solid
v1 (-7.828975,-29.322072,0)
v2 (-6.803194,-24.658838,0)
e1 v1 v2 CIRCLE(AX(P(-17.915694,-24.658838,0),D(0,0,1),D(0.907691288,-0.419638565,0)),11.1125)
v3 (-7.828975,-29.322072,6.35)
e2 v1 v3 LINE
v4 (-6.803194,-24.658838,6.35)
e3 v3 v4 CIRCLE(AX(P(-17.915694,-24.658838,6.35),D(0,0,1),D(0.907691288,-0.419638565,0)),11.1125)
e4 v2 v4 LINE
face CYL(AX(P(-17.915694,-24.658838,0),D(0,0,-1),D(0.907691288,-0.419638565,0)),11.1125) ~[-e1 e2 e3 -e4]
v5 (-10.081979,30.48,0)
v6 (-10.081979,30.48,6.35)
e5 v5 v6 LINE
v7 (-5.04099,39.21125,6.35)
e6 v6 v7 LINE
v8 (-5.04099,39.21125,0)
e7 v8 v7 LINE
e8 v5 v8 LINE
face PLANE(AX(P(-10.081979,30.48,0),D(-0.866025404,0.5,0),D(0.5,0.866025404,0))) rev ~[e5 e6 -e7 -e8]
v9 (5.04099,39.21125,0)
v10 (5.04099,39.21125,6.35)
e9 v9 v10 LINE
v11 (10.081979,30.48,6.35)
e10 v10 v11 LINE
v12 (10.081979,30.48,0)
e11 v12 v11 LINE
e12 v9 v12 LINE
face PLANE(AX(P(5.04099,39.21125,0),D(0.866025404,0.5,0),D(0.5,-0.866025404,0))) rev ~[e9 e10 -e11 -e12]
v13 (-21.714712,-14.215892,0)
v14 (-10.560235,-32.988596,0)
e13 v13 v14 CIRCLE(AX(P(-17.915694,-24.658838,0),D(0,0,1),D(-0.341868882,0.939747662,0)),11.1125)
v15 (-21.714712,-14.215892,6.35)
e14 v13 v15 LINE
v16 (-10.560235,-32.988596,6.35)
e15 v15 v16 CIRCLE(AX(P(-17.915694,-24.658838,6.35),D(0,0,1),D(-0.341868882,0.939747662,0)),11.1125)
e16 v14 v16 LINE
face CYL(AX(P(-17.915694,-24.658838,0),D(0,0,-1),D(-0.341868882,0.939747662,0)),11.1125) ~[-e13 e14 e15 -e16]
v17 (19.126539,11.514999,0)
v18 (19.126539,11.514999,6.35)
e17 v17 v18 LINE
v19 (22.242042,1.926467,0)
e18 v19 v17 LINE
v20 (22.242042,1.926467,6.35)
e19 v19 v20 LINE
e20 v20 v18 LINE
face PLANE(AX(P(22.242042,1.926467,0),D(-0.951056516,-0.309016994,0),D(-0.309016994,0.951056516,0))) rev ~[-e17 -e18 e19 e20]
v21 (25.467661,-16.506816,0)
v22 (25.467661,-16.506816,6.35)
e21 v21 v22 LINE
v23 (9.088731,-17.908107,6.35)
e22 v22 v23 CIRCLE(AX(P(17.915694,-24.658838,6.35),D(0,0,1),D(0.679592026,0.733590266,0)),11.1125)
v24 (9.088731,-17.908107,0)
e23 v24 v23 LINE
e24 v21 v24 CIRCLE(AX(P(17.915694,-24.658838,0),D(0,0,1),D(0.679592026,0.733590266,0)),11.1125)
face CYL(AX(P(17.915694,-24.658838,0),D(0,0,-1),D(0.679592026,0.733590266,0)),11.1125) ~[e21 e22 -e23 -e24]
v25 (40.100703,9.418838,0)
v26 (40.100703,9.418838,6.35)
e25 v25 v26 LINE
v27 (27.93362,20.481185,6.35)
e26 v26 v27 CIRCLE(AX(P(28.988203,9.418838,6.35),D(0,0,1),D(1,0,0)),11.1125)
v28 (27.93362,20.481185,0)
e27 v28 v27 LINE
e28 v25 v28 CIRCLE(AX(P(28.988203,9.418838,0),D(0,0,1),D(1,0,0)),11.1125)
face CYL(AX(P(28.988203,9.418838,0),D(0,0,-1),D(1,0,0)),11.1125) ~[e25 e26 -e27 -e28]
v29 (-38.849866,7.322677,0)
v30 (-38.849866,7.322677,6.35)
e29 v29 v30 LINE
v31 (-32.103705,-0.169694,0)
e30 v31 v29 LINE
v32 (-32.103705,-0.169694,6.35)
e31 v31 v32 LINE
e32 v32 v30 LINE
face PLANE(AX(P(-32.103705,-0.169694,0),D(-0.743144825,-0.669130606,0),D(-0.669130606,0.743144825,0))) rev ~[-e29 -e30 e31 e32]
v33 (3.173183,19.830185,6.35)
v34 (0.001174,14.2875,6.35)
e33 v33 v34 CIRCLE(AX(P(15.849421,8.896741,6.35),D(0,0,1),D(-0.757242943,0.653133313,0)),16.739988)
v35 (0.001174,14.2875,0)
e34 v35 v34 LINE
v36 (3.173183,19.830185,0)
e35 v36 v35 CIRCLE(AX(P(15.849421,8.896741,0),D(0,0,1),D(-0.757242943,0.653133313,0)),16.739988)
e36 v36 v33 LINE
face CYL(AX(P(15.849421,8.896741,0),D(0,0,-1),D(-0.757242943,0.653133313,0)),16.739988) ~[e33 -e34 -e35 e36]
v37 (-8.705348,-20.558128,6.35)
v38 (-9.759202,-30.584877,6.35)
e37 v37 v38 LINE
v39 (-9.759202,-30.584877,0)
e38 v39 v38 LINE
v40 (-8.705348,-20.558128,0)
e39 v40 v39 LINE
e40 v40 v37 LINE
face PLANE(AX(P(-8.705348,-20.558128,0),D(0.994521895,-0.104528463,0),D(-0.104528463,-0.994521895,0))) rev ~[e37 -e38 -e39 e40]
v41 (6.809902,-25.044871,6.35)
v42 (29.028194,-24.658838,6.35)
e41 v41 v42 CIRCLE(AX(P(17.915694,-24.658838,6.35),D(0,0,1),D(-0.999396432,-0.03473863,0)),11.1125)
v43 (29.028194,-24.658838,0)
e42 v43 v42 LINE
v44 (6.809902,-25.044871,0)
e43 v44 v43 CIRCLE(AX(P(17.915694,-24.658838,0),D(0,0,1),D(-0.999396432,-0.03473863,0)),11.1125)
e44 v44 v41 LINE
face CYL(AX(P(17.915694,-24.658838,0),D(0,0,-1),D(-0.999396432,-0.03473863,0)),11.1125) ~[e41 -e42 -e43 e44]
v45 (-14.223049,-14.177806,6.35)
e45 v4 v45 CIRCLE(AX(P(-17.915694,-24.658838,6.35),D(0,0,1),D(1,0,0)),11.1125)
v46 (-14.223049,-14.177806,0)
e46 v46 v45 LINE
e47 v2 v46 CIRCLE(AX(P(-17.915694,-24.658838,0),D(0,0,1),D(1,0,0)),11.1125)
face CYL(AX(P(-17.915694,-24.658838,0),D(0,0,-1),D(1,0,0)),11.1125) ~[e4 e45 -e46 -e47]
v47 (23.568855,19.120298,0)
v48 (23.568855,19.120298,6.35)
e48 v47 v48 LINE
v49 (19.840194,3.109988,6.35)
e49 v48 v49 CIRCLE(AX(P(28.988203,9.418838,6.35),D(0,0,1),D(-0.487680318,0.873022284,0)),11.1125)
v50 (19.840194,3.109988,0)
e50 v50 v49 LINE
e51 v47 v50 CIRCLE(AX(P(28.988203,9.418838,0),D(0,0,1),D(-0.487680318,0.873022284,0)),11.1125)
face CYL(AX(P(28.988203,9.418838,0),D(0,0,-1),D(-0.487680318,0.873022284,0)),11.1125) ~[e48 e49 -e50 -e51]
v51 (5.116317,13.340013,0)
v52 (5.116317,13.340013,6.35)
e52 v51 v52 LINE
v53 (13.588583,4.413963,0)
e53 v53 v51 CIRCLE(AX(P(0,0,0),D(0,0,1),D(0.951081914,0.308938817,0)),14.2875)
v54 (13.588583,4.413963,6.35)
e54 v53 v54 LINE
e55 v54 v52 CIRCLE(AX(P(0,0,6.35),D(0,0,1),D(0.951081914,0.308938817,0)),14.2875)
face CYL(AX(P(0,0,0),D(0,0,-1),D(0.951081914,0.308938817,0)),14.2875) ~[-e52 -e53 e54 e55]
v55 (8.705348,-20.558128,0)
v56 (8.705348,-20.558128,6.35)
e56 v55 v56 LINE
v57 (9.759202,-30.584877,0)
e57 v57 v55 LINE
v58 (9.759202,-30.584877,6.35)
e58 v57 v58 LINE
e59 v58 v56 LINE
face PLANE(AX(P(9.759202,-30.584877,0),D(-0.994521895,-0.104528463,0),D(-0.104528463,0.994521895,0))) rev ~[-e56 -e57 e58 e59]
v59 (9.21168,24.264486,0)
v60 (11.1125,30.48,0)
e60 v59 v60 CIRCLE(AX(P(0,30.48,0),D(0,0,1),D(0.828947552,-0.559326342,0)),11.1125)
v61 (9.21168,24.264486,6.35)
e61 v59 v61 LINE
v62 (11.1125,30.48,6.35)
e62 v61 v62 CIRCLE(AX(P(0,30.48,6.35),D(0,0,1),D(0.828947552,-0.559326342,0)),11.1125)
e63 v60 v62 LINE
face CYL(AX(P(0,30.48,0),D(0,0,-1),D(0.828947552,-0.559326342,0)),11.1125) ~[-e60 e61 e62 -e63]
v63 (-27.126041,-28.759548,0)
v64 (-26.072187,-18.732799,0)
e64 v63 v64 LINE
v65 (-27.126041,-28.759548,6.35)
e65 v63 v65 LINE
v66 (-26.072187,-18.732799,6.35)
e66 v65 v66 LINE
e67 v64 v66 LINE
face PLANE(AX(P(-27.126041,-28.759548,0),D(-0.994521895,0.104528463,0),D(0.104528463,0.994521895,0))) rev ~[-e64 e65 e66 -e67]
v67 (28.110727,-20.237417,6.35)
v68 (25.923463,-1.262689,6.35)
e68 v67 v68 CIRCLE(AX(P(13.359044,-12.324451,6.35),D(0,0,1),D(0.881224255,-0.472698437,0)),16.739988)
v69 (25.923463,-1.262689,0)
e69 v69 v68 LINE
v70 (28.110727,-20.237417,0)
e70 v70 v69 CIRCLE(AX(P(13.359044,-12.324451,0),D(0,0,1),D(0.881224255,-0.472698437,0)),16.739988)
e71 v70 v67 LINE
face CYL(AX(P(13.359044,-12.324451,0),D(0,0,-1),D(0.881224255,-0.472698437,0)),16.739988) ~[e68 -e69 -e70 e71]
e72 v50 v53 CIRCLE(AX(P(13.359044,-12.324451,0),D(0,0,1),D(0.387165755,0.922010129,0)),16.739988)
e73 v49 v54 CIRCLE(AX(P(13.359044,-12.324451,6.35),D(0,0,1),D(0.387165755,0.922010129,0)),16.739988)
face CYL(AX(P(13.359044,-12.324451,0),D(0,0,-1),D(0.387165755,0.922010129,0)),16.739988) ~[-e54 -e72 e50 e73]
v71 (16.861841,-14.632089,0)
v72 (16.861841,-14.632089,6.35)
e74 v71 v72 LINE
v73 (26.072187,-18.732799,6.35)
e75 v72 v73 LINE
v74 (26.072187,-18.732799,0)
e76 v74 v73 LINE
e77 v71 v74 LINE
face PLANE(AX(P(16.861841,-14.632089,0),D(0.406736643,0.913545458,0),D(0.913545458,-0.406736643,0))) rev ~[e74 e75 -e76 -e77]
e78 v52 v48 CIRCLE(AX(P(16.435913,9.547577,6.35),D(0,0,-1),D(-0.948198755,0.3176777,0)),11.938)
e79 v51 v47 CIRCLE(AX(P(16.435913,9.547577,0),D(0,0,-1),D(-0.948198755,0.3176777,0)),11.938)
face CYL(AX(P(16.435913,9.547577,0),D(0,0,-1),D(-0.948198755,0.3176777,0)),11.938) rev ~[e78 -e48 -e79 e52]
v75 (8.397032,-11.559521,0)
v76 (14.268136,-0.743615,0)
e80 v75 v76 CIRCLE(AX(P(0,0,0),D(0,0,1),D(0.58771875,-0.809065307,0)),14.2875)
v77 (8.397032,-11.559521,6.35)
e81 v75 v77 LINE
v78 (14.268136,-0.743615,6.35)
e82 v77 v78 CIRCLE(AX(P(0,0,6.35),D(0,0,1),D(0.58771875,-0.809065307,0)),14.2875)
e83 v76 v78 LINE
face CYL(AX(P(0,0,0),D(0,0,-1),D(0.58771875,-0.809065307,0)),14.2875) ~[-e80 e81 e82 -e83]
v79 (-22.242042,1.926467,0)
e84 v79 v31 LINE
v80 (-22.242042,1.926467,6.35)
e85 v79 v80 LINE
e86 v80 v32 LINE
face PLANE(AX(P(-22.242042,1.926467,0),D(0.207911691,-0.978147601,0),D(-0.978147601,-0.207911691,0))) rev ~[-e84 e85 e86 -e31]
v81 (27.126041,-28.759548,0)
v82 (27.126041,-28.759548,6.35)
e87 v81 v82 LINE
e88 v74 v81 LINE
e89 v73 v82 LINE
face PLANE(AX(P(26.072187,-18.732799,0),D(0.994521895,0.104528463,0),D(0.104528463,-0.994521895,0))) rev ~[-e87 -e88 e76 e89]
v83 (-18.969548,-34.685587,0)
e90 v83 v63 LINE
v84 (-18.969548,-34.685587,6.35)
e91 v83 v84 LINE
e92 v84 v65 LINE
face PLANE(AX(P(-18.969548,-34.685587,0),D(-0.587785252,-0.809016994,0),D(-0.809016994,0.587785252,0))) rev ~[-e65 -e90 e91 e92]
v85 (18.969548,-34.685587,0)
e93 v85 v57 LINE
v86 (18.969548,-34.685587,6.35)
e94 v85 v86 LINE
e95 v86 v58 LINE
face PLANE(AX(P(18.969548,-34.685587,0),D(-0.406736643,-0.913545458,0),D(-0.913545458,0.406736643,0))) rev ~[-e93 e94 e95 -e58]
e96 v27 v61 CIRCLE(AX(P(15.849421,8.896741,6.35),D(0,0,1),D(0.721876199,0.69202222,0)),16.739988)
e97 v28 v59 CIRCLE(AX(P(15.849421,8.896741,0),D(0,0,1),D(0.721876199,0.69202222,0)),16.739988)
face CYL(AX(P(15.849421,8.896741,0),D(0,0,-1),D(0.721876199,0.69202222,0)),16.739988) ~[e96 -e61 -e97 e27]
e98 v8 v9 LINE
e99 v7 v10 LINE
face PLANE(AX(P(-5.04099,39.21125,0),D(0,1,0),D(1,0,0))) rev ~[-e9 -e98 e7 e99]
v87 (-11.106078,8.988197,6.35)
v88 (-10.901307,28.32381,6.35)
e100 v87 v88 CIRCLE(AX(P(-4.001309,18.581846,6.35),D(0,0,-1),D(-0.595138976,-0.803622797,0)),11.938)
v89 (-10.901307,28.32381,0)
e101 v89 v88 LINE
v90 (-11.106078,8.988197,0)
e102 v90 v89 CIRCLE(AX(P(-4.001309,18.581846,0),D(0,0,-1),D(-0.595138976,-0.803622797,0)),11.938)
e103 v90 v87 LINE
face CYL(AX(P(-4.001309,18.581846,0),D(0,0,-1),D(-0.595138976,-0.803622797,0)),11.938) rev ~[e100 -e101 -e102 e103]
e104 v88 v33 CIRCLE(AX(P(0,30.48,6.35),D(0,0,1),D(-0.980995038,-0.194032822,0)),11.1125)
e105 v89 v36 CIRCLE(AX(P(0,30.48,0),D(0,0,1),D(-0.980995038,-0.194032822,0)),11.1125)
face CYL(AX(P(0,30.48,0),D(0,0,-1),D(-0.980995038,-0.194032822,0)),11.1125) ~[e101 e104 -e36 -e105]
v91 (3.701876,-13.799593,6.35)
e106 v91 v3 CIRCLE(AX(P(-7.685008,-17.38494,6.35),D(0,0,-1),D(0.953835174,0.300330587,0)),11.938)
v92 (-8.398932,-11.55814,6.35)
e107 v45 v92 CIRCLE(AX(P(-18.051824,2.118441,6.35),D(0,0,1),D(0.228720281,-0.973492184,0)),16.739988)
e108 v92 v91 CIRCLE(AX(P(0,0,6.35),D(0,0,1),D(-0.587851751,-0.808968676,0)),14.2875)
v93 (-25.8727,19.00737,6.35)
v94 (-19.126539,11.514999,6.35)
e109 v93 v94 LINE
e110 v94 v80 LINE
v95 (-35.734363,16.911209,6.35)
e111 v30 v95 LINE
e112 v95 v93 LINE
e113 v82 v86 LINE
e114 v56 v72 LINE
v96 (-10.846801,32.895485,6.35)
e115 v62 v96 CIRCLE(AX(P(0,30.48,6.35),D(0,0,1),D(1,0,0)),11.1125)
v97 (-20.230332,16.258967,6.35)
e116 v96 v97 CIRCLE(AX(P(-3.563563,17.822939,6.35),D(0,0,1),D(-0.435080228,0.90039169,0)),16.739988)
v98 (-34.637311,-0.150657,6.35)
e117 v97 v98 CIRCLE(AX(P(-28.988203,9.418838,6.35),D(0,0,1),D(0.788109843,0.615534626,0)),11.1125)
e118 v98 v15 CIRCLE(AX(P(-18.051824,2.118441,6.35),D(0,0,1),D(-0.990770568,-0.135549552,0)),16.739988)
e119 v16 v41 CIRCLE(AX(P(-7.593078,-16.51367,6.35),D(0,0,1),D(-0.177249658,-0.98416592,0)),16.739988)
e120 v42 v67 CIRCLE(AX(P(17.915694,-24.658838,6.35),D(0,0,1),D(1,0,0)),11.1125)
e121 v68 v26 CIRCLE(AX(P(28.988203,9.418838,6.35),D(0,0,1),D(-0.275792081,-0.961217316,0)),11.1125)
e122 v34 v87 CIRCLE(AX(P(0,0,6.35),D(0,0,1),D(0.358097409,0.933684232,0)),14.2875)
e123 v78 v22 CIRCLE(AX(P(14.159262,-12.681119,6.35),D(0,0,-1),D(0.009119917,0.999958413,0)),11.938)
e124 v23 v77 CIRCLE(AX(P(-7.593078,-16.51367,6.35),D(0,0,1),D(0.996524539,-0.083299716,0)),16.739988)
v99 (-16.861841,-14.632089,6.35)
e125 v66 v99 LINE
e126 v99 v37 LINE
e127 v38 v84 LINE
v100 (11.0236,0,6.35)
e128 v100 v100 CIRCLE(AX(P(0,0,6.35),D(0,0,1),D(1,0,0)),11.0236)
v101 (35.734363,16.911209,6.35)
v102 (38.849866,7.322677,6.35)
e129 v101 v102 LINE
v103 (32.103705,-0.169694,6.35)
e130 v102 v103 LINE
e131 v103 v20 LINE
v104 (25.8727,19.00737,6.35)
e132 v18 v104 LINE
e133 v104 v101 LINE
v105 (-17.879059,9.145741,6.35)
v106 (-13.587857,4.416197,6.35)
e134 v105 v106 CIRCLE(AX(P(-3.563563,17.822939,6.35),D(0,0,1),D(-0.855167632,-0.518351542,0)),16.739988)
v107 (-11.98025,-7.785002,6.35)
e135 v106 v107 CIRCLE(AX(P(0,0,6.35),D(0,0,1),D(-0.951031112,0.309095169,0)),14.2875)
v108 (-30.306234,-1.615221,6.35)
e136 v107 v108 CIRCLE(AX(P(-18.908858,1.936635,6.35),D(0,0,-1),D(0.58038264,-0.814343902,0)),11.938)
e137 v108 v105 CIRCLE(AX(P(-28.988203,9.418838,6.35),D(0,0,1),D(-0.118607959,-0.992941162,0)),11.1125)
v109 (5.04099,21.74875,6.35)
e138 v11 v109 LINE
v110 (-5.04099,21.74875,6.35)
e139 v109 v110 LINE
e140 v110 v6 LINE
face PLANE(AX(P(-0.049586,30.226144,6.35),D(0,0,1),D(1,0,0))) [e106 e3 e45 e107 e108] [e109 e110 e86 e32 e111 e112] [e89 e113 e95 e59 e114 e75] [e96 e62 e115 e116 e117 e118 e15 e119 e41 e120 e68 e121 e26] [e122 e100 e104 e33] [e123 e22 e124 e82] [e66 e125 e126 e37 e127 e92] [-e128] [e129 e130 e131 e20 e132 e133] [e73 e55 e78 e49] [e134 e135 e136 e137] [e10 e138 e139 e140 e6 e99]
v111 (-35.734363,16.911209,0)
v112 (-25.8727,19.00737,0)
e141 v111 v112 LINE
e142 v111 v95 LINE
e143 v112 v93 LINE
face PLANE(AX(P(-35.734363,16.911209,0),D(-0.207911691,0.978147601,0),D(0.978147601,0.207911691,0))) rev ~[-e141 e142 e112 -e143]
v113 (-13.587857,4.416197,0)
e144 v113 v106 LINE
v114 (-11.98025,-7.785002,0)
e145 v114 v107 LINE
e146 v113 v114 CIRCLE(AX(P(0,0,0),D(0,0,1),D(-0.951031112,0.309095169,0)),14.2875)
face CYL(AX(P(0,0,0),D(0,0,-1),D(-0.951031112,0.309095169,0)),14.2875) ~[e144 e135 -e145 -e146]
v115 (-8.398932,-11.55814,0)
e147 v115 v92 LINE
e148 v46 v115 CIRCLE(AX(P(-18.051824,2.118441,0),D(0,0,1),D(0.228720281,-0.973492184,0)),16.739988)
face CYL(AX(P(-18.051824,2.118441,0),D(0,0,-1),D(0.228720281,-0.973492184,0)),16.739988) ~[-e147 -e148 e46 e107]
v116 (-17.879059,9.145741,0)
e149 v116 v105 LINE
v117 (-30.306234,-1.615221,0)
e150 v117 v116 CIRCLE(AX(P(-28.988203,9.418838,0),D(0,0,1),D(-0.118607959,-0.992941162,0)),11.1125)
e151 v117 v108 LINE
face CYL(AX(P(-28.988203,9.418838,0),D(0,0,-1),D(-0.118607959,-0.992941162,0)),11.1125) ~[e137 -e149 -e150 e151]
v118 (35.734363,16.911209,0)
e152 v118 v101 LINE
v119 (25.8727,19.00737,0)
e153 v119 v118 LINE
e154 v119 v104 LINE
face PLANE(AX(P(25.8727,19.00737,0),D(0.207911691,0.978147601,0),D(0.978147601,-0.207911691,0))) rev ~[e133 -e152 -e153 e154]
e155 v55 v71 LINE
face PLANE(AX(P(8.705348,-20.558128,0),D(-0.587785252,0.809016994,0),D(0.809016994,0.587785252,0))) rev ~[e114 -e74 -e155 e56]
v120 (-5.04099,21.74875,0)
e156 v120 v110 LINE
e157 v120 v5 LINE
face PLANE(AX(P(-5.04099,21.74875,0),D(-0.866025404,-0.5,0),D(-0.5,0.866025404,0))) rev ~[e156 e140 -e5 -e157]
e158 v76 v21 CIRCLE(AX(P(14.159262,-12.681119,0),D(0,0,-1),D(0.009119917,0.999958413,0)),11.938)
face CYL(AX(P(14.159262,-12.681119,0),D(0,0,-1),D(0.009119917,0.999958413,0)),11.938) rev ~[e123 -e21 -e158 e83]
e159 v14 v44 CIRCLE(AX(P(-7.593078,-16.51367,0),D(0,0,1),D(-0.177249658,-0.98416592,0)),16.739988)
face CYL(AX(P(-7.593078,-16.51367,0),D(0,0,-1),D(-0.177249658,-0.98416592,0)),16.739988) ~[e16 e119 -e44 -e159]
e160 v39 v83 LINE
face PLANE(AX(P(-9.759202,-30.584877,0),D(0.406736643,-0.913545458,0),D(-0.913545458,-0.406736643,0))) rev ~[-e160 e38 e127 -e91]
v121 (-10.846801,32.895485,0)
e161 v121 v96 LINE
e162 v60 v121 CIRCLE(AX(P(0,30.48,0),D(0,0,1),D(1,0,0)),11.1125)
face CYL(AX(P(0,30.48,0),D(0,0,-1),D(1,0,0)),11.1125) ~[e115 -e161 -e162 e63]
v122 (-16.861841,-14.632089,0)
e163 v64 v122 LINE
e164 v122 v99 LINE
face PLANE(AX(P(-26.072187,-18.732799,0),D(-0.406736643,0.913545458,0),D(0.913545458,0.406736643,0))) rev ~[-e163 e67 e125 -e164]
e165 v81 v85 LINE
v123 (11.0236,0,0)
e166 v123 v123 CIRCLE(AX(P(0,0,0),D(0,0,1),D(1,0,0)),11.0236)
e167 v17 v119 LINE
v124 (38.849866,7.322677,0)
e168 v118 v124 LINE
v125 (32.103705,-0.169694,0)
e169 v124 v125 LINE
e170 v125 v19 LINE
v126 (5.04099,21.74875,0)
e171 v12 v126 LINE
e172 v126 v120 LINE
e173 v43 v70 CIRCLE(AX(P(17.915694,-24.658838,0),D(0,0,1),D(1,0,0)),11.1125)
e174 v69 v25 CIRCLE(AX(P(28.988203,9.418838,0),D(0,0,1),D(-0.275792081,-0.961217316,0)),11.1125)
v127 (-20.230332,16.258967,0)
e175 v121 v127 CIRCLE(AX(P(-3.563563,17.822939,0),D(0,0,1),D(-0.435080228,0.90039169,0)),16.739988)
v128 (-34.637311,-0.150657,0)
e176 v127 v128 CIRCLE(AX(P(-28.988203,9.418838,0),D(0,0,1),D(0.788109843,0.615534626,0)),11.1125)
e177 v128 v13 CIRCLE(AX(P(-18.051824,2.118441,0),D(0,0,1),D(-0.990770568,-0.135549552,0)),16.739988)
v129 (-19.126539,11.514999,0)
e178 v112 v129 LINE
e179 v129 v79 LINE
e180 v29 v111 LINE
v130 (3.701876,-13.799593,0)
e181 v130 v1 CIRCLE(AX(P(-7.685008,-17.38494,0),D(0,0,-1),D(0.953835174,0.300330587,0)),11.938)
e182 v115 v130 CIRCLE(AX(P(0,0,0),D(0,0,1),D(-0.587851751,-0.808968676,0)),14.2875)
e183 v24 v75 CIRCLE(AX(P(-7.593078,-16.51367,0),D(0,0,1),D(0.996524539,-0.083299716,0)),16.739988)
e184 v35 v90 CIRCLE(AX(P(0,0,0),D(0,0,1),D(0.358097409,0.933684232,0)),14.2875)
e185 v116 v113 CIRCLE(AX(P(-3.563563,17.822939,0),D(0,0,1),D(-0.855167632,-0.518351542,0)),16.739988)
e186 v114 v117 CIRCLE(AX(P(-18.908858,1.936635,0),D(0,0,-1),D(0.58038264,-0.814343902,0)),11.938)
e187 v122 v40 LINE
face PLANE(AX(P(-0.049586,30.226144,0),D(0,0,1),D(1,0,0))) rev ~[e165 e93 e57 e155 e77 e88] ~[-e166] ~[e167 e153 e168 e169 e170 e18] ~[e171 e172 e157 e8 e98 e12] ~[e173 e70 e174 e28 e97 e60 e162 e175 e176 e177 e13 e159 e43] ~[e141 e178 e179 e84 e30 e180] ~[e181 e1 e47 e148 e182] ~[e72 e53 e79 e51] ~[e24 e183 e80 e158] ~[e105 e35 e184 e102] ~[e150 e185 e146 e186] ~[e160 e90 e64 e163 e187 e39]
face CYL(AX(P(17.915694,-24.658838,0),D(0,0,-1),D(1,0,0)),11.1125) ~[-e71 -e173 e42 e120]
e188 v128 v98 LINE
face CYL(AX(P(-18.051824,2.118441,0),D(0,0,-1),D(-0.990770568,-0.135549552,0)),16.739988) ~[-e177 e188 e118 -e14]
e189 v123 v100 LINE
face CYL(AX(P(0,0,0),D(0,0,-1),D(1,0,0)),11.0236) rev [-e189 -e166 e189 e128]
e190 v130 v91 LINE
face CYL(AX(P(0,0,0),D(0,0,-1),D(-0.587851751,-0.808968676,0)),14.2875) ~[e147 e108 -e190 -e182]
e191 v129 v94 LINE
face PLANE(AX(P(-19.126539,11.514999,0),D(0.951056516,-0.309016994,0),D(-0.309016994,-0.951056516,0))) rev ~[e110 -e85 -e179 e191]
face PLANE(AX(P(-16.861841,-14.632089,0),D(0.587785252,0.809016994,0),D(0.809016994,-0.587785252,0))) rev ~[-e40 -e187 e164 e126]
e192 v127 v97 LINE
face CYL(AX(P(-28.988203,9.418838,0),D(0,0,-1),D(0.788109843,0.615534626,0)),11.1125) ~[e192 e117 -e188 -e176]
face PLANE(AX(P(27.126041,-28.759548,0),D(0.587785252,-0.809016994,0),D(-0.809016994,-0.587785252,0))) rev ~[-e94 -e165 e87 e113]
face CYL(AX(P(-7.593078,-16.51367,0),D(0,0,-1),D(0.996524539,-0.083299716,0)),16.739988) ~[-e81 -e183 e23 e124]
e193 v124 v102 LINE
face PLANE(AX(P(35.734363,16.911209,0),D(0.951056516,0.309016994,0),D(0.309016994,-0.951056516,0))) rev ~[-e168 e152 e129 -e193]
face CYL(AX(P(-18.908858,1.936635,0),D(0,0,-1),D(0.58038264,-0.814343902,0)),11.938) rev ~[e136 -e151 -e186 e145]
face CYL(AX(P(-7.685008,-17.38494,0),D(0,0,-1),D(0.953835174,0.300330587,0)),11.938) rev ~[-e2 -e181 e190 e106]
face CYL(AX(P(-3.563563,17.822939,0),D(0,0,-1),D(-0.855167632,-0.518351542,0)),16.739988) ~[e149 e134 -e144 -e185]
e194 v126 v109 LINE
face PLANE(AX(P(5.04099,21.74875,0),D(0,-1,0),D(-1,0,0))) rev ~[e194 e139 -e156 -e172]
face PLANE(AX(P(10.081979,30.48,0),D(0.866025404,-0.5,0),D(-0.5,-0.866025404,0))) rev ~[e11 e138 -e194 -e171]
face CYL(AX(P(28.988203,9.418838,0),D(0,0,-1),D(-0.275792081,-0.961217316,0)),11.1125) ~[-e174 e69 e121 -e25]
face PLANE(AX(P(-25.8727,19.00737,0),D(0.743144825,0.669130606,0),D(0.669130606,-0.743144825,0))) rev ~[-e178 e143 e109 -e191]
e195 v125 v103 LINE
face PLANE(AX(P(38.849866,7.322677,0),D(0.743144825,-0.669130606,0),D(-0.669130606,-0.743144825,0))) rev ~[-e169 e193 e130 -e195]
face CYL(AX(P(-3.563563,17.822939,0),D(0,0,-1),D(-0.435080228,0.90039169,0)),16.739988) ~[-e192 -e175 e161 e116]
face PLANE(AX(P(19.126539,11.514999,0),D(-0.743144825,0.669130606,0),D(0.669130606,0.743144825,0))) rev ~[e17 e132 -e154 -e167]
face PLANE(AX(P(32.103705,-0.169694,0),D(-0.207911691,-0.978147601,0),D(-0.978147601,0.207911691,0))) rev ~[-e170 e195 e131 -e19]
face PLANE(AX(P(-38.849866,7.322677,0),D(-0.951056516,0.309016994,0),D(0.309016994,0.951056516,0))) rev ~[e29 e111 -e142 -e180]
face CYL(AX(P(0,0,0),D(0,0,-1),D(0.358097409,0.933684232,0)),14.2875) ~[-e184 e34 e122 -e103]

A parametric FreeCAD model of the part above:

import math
import FreeCAD as App
import Part
import Sketcher

V = App.Vector
Q = App.Units.Quantity

doc = App.newDocument("Part")
body = doc.addObject("PartDesign::Body", "Body")

# Sketch on XY plane
sketch1 = body.newObject("Sketcher::SketchObject", "Sketch")
sketch1.AttachmentSupport = (doc.getObject("XY_Plane"), [""])
sketch1.MapMode = "FlatFace"
sketch1.addGeometry(Part.ArcOfCircle(Part.Circle(V(29, 9.4, 0), V(0, 0, 1), 11.1), math.radians(0), math.radians(95)), False)
sketch1.addGeometry(Part.ArcOfCircle(Part.Circle(V(15.8, 8.9, 0), V(0, 0, 1), 16.7), math.radians(44), math.radians(113)), False)
sketch1.addGeometry(Part.ArcOfCircle(Part.Circle(V(0, 30.5, 0), V(0, 0, 1), 11.1), math.radians(-34), math.radians(0)), False)
sketch1.addGeometry(Part.ArcOfCircle(Part.Circle(V(0, 30.5, 0), V(0, 0, 1), 11.1), math.radians(0), math.radians(167)), False)
sketch1.addGeometry(Part.ArcOfCircle(Part.Circle(V(-3.6, 17.8, 0), V(0, 0, 1), 16.7), math.radians(116), math.radians(185)), False)
sketch1.addGeometry(Part.ArcOfCircle(Part.Circle(V(-29, 9.4, 0), V(0, 0, 1), 11.1), math.radians(38), math.radians(239)), False)
sketch1.addGeometry(Part.ArcOfCircle(Part.Circle(V(-18.1, 2.1, 0), V(0, 0, 1), 16.7), math.radians(-172), math.radians(-103)), False)
sketch1.addGeometry(Part.ArcOfCircle(Part.Circle(V(-17.9, -24.7, 0), V(0, 0, 1), 11.1), math.radians(110), math.radians(311)), False)
sketch1.addGeometry(Part.ArcOfCircle(Part.Circle(V(-7.6, -16.5, 0), V(0, 0, 1), 16.7), math.radians(-100), math.radians(-31)), False)
sketch1.addGeometry(Part.ArcOfCircle(Part.Circle(V(17.9, -24.7, 0), V(0, 0, 1), 11.1), math.radians(-178), math.radians(0)), False)
sketch1.addGeometry(Part.ArcOfCircle(Part.Circle(V(17.9, -24.7, 0), V(0, 0, 1), 11.1), math.radians(0), math.radians(23)), False)
sketch1.addGeometry(Part.ArcOfCircle(Part.Circle(V(13.4, -12.3, 0), V(0, 0, 1), 16.7), math.radians(-28), math.radians(41)), False)
sketch1.addGeometry(Part.ArcOfCircle(Part.Circle(V(29, 9.4, 0), V(0, 0, 1), 11.1), math.radians(-106), math.radians(0)), False)
sketch1.addGeometry(Part.LineSegment(V(-16.9, -14.6, 0), V(-8.7, -20.6, 0)), False)
sketch1.addGeometry(Part.LineSegment(V(-8.7, -20.6, 0), V(-9.8, -30.6, 0)), False)
sketch1.addGeometry(Part.LineSegment(V(-9.8, -30.6, 0), V(-19, -34.7, 0)), False)
sketch1.addGeometry(Part.LineSegment(V(-19, -34.7, 0), V(-27.1, -28.8, 0)), False)
sketch1.addGeometry(Part.LineSegment(V(-27.1, -28.8, 0), V(-26.1, -18.7, 0)), False)
sketch1.addGeometry(Part.LineSegment(V(-26.1, -18.7, 0), V(-16.9, -14.6, 0)), False)
sketch1.addGeometry(Part.ArcOfCircle(Part.Circle(V(-18.1, 2.1, 0), V(0, 0, 1), 16.7), math.radians(-77), math.radians(-55)), False)
sketch1.addGeometry(Part.ArcOfCircle(Part.Circle(V(0, 0, 0), V(0, 0, 1), 14.3), math.radians(-126), math.radians(-75)), False)
sketch1.addGeometry(Part.ArcOfCircle(Part.Circle(V(-7.7, -17.4, 0), V(0, 0, 1), 11.9), math.radians(-91), math.radians(17)), False)
sketch1.addGeometry(Part.ArcOfCircle(Part.Circle(V(-17.9, -24.7, 0), V(0, 0, 1), 11.1), math.radians(-25), math.radians(0)), False)
sketch1.addGeometry(Part.ArcOfCircle(Part.Circle(V(-17.9, -24.7, 0), V(0, 0, 1), 11.1), math.radians(0), math.radians(71)), False)
sketch1.addGeometry(Part.ArcOfCircle(Part.Circle(V(-3.6, 17.8, 0), V(0, 0, 1), 16.7), math.radians(-149), math.radians(-127)), False)
sketch1.addGeometry(Part.ArcOfCircle(Part.Circle(V(0, 0, 0), V(0, 0, 1), 14.3), math.radians(162), math.radians(213)), False)
sketch1.addGeometry(Part.ArcOfCircle(Part.Circle(V(-18.9, 1.9, 0), V(0, 0, 1), 11.9), math.radians(-163), math.radians(-55)), False)
sketch1.addGeometry(Part.ArcOfCircle(Part.Circle(V(-29, 9.4, 0), V(0, 0, 1), 11.1), math.radians(-97), math.radians(-1)), False)
sketch1.addGeometry(Part.LineSegment(V(8.7, -20.6, 0), V(16.9, -14.6, 0)), False)
sketch1.addGeometry(Part.LineSegment(V(16.9, -14.6, 0), V(26.1, -18.7, 0)), False)
sketch1.addGeometry(Part.LineSegment(V(26.1, -18.7, 0), V(27.1, -28.8, 0)), False)
sketch1.addGeometry(Part.LineSegment(V(27.1, -28.8, 0), V(19, -34.7, 0)), False)
sketch1.addGeometry(Part.LineSegment(V(19, -34.7, 0), V(9.8, -30.6, 0)), False)
sketch1.addGeometry(Part.LineSegment(V(9.8, -30.6, 0), V(8.7, -20.6, 0)), False)
sketch1.addGeometry(Part.ArcOfCircle(Part.Circle(V(-7.6, -16.5, 0), V(0, 0, 1), 16.7), math.radians(-5), math.radians(17)), False)
sketch1.addGeometry(Part.ArcOfCircle(Part.Circle(V(0, 0, 0), V(0, 0, 1), 14.3), math.radians(-54), math.radians(-3)), False)
sketch1.addGeometry(Part.ArcOfCircle(Part.Circle(V(14.2, -12.7, 0), V(0, 0, 1), 11.9), math.radians(-19), math.radians(89)), False)
sketch1.addGeometry(Part.ArcOfCircle(Part.Circle(V(17.9, -24.7, 0), V(0, 0, 1), 11.1), math.radians(47), math.radians(143)), False)
sketch1.addGeometry(Part.Circle(V(0, 0, 0), V(0, 0, 1), 11), False)
sketch1.addGeometry(Part.LineSegment(V(-25.9, 19, 0), V(-19.1, 11.5, 0)), False)
sketch1.addGeometry(Part.LineSegment(V(-19.1, 11.5, 0), V(-22.2, 1.9, 0)), False)
sketch1.addGeometry(Part.LineSegment(V(-22.2, 1.9, 0), V(-32.1, -0.2, 0)), False)
sketch1.addGeometry(Part.LineSegment(V(-32.1, -0.2, 0), V(-38.8, 7.3, 0)), False)
sketch1.addGeometry(Part.LineSegment(V(-38.8, 7.3, 0), V(-35.7, 16.9, 0)), False)
sketch1.addGeometry(Part.LineSegment(V(-35.7, 16.9, 0), V(-25.9, 19, 0)), False)
sketch1.addGeometry(Part.ArcOfCircle(Part.Circle(V(0, 30.5, 0), V(0, 0, 1), 11.1), math.radians(-169), math.radians(-73)), False)
sketch1.addGeometry(Part.ArcOfCircle(Part.Circle(V(15.8, 8.9, 0), V(0, 0, 1), 16.7), math.radians(139), math.radians(161)), False)
sketch1.addGeometry(Part.ArcOfCircle(Part.Circle(V(0, 0, 0), V(0, 0, 1), 14.3), math.radians(90), math.radians(141)), False)
sketch1.addGeometry(Part.ArcOfCircle(Part.Circle(V(-4, 18.6, 0), V(0, 0, 1), 11.9), math.radians(125), math.radians(233)), False)
sketch1.addGeometry(Part.ArcOfCircle(Part.Circle(V(13.4, -12.3, 0), V(0, 0, 1), 16.7), math.radians(67), math.radians(89)), False)
sketch1.addGeometry(Part.ArcOfCircle(Part.Circle(V(0, 0, 0), V(0, 0, 1), 14.3), math.radians(18), math.radians(69)), False)
sketch1.addGeometry(Part.ArcOfCircle(Part.Circle(V(16.4, 9.5, 0), V(0, 0, 1), 11.9), math.radians(53), math.radians(161)), False)
sketch1.addGeometry(Part.ArcOfCircle(Part.Circle(V(29, 9.4, 0), V(0, 0, 1), 11.1), math.radians(119), math.radians(215)), False)
sketch1.addGeometry(Part.LineSegment(V(19.1, 11.5, 0), V(25.9, 19, 0)), False)
sketch1.addGeometry(Part.LineSegment(V(25.9, 19, 0), V(35.7, 16.9, 0)), False)
sketch1.addGeometry(Part.LineSegment(V(35.7, 16.9, 0), V(38.8, 7.3, 0)), False)
sketch1.addGeometry(Part.LineSegment(V(38.8, 7.3, 0), V(32.1, -0.2, 0)), False)
sketch1.addGeometry(Part.LineSegment(V(32.1, -0.2, 0), V(22.2, 1.9, 0)), False)
sketch1.addGeometry(Part.LineSegment(V(22.2, 1.9, 0), V(19.1, 11.5, 0)), False)
sketch1.addGeometry(Part.LineSegment(V(5, 39.2, 0), V(10.1, 30.5, 0)), False)
sketch1.addGeometry(Part.LineSegment(V(10.1, 30.5, 0), V(5, 21.7, 0)), False)
sketch1.addGeometry(Part.LineSegment(V(5, 21.7, 0), V(-5, 21.7, 0)), False)
sketch1.addGeometry(Part.LineSegment(V(-5, 21.7, 0), V(-10.1, 30.5, 0)), False)
sketch1.addGeometry(Part.LineSegment(V(-10.1, 30.5, 0), V(-5, 39.2, 0)), False)
sketch1.addGeometry(Part.LineSegment(V(-5, 39.2, 0), V(5, 39.2, 0)), False)
sketch1.addConstraint(Sketcher.Constraint("Coincident", 0, 2, 1, 1))
sketch1.addConstraint(Sketcher.Constraint("Coincident", 1, 2, 2, 1))
sketch1.addConstraint(Sketcher.Constraint("Tangent", 2, 2, 3, 1))
sketch1.addConstraint(Sketcher.Constraint("Coincident", 3, 2, 4, 1))
sketch1.addConstraint(Sketcher.Constraint("Coincident", 4, 2, 5, 1))
sketch1.addConstraint(Sketcher.Constraint("Coincident", 5, 2, 6, 1))
sketch1.addConstraint(Sketcher.Constraint("Coincident", 6, 2, 7, 1))
sketch1.addConstraint(Sketcher.Constraint("Coincident", 7, 2, 8, 1))
sketch1.addConstraint(Sketcher.Constraint("Coincident", 8, 2, 9, 1))
sketch1.addConstraint(Sketcher.Constraint("Tangent", 9, 2, 10, 1))
sketch1.addConstraint(Sketcher.Constraint("Coincident", 10, 2, 11, 1))
sketch1.addConstraint(Sketcher.Constraint("Coincident", 11, 2, 12, 1))
sketch1.addConstraint(Sketcher.Constraint("Tangent", 12, 2, 0, 1))
sketch1.addConstraint(Sketcher.Constraint("Coincident", 13, 2, 14, 1))
sketch1.addConstraint(Sketcher.Constraint("Coincident", 14, 2, 15, 1))
sketch1.addConstraint(Sketcher.Constraint("Coincident", 15, 2, 16, 1))
sketch1.addConstraint(Sketcher.Constraint("Coincident", 16, 2, 17, 1))
sketch1.addConstraint(Sketcher.Constraint("Coincident", 17, 2, 18, 1))
sketch1.addConstraint(Sketcher.Constraint("Coincident", 18, 2, 13, 1))
sketch1.addConstraint(Sketcher.Constraint("Coincident", 19, 2, 20, 1))
sketch1.addConstraint(Sketcher.Constraint("Coincident", 20, 2, 21, 2))
sketch1.addConstraint(Sketcher.Constraint("Coincident", 21, 1, 22, 1))
sketch1.addConstraint(Sketcher.Constraint("Tangent", 22, 2, 23, 1))
sketch1.addConstraint(Sketcher.Constraint("Coincident", 23, 2, 19, 1))
sketch1.addConstraint(Sketcher.Constraint("Coincident", 24, 2, 25, 1))
sketch1.addConstraint(Sketcher.Constraint("Coincident", 25, 2, 26, 2))
sketch1.addConstraint(Sketcher.Constraint("Coincident", 26, 1, 27, 1))
sketch1.addConstraint(Sketcher.Constraint("Coincident", 27, 2, 24, 1))
sketch1.addConstraint(Sketcher.Constraint("Coincident", 28, 2, 29, 1))
sketch1.addConstraint(Sketcher.Constraint("Coincident", 29, 2, 30, 1))
sketch1.addConstraint(Sketcher.Constraint("Coincident", 30, 2, 31, 1))
sketch1.addConstraint(Sketcher.Constraint("Coincident", 31, 2, 32, 1))
sketch1.addConstraint(Sketcher.Constraint("Coincident", 32, 2, 33, 1))
sketch1.addConstraint(Sketcher.Constraint("Coincident", 33, 2, 28, 1))
sketch1.addConstraint(Sketcher.Constraint("Coincident", 34, 2, 35, 1))
sketch1.addConstraint(Sketcher.Constraint("Coincident", 35, 2, 36, 2))
sketch1.addConstraint(Sketcher.Constraint("Coincident", 36, 1, 37, 1))
sketch1.addConstraint(Sketcher.Constraint("Coincident", 37, 2, 34, 1))
sketch1.addConstraint(Sketcher.Constraint("Coincident", 39, 2, 40, 1))
sketch1.addConstraint(Sketcher.Constraint("Coincident", 40, 2, 41, 1))
sketch1.addConstraint(Sketcher.Constraint("Coincident", 41, 2, 42, 1))
sketch1.addConstraint(Sketcher.Constraint("Coincident", 42, 2, 43, 1))
sketch1.addConstraint(Sketcher.Constraint("Coincident", 43, 2, 44, 1))
sketch1.addConstraint(Sketcher.Constraint("Coincident", 44, 2, 39, 1))
sketch1.addConstraint(Sketcher.Constraint("Coincident", 45, 2, 46, 1))
sketch1.addConstraint(Sketcher.Constraint("Coincident", 46, 2, 47, 1))
sketch1.addConstraint(Sketcher.Constraint("Coincident", 47, 2, 48, 2))
sketch1.addConstraint(Sketcher.Constraint("Coincident", 48, 1, 45, 1))
sketch1.addConstraint(Sketcher.Constraint("Coincident", 49, 2, 50, 1))
sketch1.addConstraint(Sketcher.Constraint("Coincident", 50, 2, 51, 2))
sketch1.addConstraint(Sketcher.Constraint("Coincident", 51, 1, 52, 1))
sketch1.addConstraint(Sketcher.Constraint("Coincident", 52, 2, 49, 1))
sketch1.addConstraint(Sketcher.Constraint("Coincident", 53, 2, 54, 1))
sketch1.addConstraint(Sketcher.Constraint("Coincident", 54, 2, 55, 1))
sketch1.addConstraint(Sketcher.Constraint("Coincident", 55, 2, 56, 1))
sketch1.addConstraint(Sketcher.Constraint("Coincident", 56, 2, 57, 1))
sketch1.addConstraint(Sketcher.Constraint("Coincident", 57, 2, 58, 1))
sketch1.addConstraint(Sketcher.Constraint("Coincident", 58, 2, 53, 1))
sketch1.addConstraint(Sketcher.Constraint("Coincident", 59, 2, 60, 1))
sketch1.addConstraint(Sketcher.Constraint("Coincident", 60, 2, 61, 1))
sketch1.addConstraint(Sketcher.Constraint("Coincident", 61, 2, 62, 1))
sketch1.addConstraint(Sketcher.Constraint("Coincident", 62, 2, 63, 1))
sketch1.addConstraint(Sketcher.Constraint("Coincident", 63, 2, 64, 1))
sketch1.addConstraint(Sketcher.Constraint("Coincident", 64, 2, 59, 1))
sketch1.addConstraint(Sketcher.Constraint("Horizontal", 61))
sketch1.addConstraint(Sketcher.Constraint("Horizontal", 64))
sketch1.addConstraint(Sketcher.Constraint("Coincident", 20, 3, -1, 1))
sketch1.addConstraint(Sketcher.Constraint("Coincident", 25, 3, -1, 1))
sketch1.addConstraint(Sketcher.Constraint("Coincident", 35, 3, -1, 1))
sketch1.addConstraint(Sketcher.Constraint("Coincident", 38, 3, -1, 1))
sketch1.addConstraint(Sketcher.Constraint("Coincident", 47, 3, -1, 1))
sketch1.addConstraint(Sketcher.Constraint("Coincident", 50, 3, -1, 1))
sketch1.addConstraint(Sketcher.Constraint("Coincident", 19, 3, 6, 3))
sketch1.addConstraint(Sketcher.Constraint("Coincident", 22, 3, 7, 3))
sketch1.addConstraint(Sketcher.Constraint("Coincident", 24, 3, 4, 3))
sketch1.addConstraint(Sketcher.Constraint("Coincident", 27, 3, 5, 3))
sketch1.addConstraint(Sketcher.Constraint("Coincident", 34, 3, 8, 3))
sketch1.addConstraint(Sketcher.Constraint("Coincident", 37, 3, 9, 3))
sketch1.addConstraint(Sketcher.Constraint("Coincident", 45, 3, 2, 3))
sketch1.addConstraint(Sketcher.Constraint("Coincident", 46, 3, 1, 3))
sketch1.addConstraint(Sketcher.Constraint("Coincident", 49, 3, 11, 3))
sketch1.addConstraint(Sketcher.Constraint("Coincident", 52, 3, 0, 3))
sketch1.addConstraint(Sketcher.Constraint("Equal", 0, 2))
sketch1.addConstraint(Sketcher.Constraint("Equal", 2, 3))
sketch1.addConstraint(Sketcher.Constraint("Equal", 1, 4))
sketch1.addConstraint(Sketcher.Constraint("Equal", 3, 5))
sketch1.addConstraint(Sketcher.Constraint("Equal", 4, 6))
sketch1.addConstraint(Sketcher.Constraint("Equal", 5, 7))
sketch1.addConstraint(Sketcher.Constraint("Equal", 6, 8))
sketch1.addConstraint(Sketcher.Constraint("Equal", 7, 9))
sketch1.addConstraint(Sketcher.Constraint("Equal", 9, 10))
sketch1.addConstraint(Sketcher.Constraint("Equal", 8, 11))
sketch1.addConstraint(Sketcher.Constraint("Equal", 10, 12))
sketch1.addConstraint(Sketcher.Constraint("Equal", 11, 19))
sketch1.addConstraint(Sketcher.Constraint("Equal", 12, 22))
sketch1.addConstraint(Sketcher.Constraint("Equal", 22, 23))
sketch1.addConstraint(Sketcher.Constraint("Equal", 19, 24))
sketch1.addConstraint(Sketcher.Constraint("Equal", 20, 25))
sketch1.addConstraint(Sketcher.Constraint("Equal", 21, 26))
sketch1.addConstraint(Sketcher.Constraint("Equal", 23, 27))
sketch1.addConstraint(Sketcher.Constraint("Equal", 24, 34))
sketch1.addConstraint(Sketcher.Constraint("Equal", 25, 35))
sketch1.addConstraint(Sketcher.Constraint("Equal", 26, 36))
sketch1.addConstraint(Sketcher.Constraint("Equal", 27, 37))
sketch1.addConstraint(Sketcher.Constraint("Equal", 37, 45))
sketch1.addConstraint(Sketcher.Constraint("Equal", 34, 46))
sketch1.addConstraint(Sketcher.Constraint("Equal", 35, 47))
sketch1.addConstraint(Sketcher.Constraint("Equal", 36, 48))
sketch1.addConstraint(Sketcher.Constraint("Equal", 46, 49))
sketch1.addConstraint(Sketcher.Constraint("Equal", 47, 50))
sketch1.addConstraint(Sketcher.Constraint("Equal", 48, 51))
sketch1.addConstraint(Sketcher.Constraint("Equal", 45, 52))
sketch1.addConstraint(Sketcher.Constraint("Symmetric", 0, 3, 5, 3, -2))
sketch1.addConstraint(Sketcher.Constraint("Symmetric", 7, 3, 9, 3, -2))
sketch1.addConstraint(Sketcher.Constraint("Symmetric", 18, 2, 28, 2, -2))
sketch1.addConstraint(Sketcher.Constraint("Symmetric", 17, 2, 29, 2, -2))
sketch1.addConstraint(Sketcher.Constraint("Symmetric", 16, 2, 30, 2, -2))
sketch1.addConstraint(Sketcher.Constraint("Symmetric", 15, 2, 31, 2, -2))
sketch1.addConstraint(Sketcher.Constraint("Symmetric", 14, 2, 32, 2, -2))
sketch1.addConstraint(Sketcher.Constraint("Symmetric", 13, 2, 33, 2, -2))
sketch1.addConstraint(Sketcher.Constraint("Symmetric", 44, 2, 53, 2, -2))
sketch1.addConstraint(Sketcher.Constraint("Symmetric", 43, 2, 54, 2, -2))
sketch1.addConstraint(Sketcher.Constraint("Symmetric", 42, 2, 55, 2, -2))
sketch1.addConstraint(Sketcher.Constraint("Symmetric", 41, 2, 56, 2, -2))
sketch1.addConstraint(Sketcher.Constraint("Symmetric", 40, 2, 57, 2, -2))
sketch1.addConstraint(Sketcher.Constraint("Symmetric", 39, 2, 58, 2, -2))
sketch1.addConstraint(Sketcher.Constraint("Symmetric", 59, 2, 62, 2, -2))
sketch1.addConstraint(Sketcher.Constraint("PointOnObject", 2, 3, -2))
sketch1.addConstraint(Sketcher.Constraint("Parallel", 13, 16))
sketch1.addConstraint(Sketcher.Constraint("Parallel", 14, 17))
sketch1.addConstraint(Sketcher.Constraint("Parallel", 15, 18))
sketch1.addConstraint(Sketcher.Constraint("Parallel", 39, 42))
sketch1.addConstraint(Sketcher.Constraint("Parallel", 40, 43))
sketch1.addConstraint(Sketcher.Constraint("Parallel", 41, 44))
sketch1.addConstraint(Sketcher.Constraint("Parallel", 59, 62))
sketch1.addConstraint(Sketcher.Constraint("Parallel", 60, 63))
sketch1.addConstraint(Sketcher.Constraint("Horizontal", 45, 3, 2, 2))
sketch1.addConstraint(Sketcher.Constraint("Horizontal", 37, 3, 9, 2))
sketch1.addConstraint(Sketcher.Constraint("Horizontal", 52, 3, 12, 2))
sketch1.addConstraint(Sketcher.Constraint("Horizontal", 9, 2, 22, 2))
sketch1.addConstraint(Sketcher.Constraint("Horizontal", 2, 2, 59, 2))
sketch1.addConstraint(Sketcher.Constraint("Vertical", 61, 2, 63, 2))
sketch1.addConstraint(Sketcher.Constraint("Vertical", 60, 2, 64, 2))
sketch1.addConstraint(Sketcher.Constraint("Equal", 13, 14))
sketch1.addConstraint(Sketcher.Constraint("Equal", 14, 15))
sketch1.addConstraint(Sketcher.Constraint("Equal", 15, 16))
sketch1.addConstraint(Sketcher.Constraint("Equal", 33, 39))
sketch1.addConstraint(Sketcher.Constraint("Equal", 39, 40))
sketch1.addConstraint(Sketcher.Constraint("Equal", 40, 41))
sketch1.addConstraint(Sketcher.Constraint("Equal", 41, 42))
sketch1.addConstraint(Sketcher.Constraint("Equal", 58, 59))
sketch1.addConstraint(Sketcher.Constraint("Radius", 21, Q("0.47 in")))
sketch1.addConstraint(Sketcher.Constraint("Diameter", 38, Q("0.868 in")))
sketch1.addConstraint(Sketcher.Constraint("Angle", 13, Q("-36 deg")))
sketch1.addConstraint(Sketcher.Constraint("Angle", 14, Q("-96 deg")))
sketch1.addConstraint(Sketcher.Constraint("Angle", 15, Q("-156 deg")))
sketch1.addConstraint(Sketcher.Constraint("Angle", 39, Q("-48 deg")))
sketch1.addConstraint(Sketcher.Constraint("Angle", 40, Q("-108 deg")))
sketch1.addConstraint(Sketcher.Constraint("Angle", 41, Q("-168 deg")))
sketch1.addConstraint(Sketcher.Constraint("Angle", 59, Q("-60 deg")))
sketch1.addConstraint(Sketcher.Constraint("Radius", 0, Q("0.4375 in")))
sketch1.addConstraint(Sketcher.Constraint("Radius", 20, Q("0.5625 in")))
sketch1.addConstraint(Sketcher.Constraint("DistanceY", -1, 1, 2, 3, Q("1.2 in")))
sketch1.addConstraint(Sketcher.Constraint("Radius", 1, Q("16.739988 mm")))
sketch1.addConstraint(Sketcher.Constraint("DistanceX", 27, 2, -1, 1, Q("0.7039 in")))
sketch1.addConstraint(Sketcher.Constraint("DistanceX", 61, 2, 61, 1, Q("10.081979 mm")))
sketch1.addConstraint(Sketcher.Constraint("DistanceX", 3, 2, -1, 1, Q("10.846801 mm")))
sketch1.addConstraint(Sketcher.Constraint("DistanceX", -1, 1, 8, 2, Q("6.809902 mm")))
sketch1.addConstraint(Sketcher.Constraint("DistanceY", 17, 2, -1, 1, Q("18.732799 mm")))
sketch1.addConstraint(Sketcher.Constraint("DistanceY", -1, 1, 39, 2, Q("11.514999 mm")))
sketch1.addConstraint(Sketcher.Constraint("DistanceX", 44, 2, -1, 1, Q("25.8727 mm")))
sketch1.addConstraint(Sketcher.Constraint("DistanceY", -1, 1, 51, 1, Q("19.120298 mm")))
sketch1.addConstraint(Sketcher.Constraint("Distance", 13, Q("10.081979 mm")))
sketch1.addConstraint(Sketcher.Constraint("DistanceX", -1, 1, 1, 3, Q("15.849421 mm")))
sketch1.addConstraint(Sketcher.Constraint("DistanceY", -1, 1, 1, 3, Q("8.896741 mm")))
sketch1.addConstraint(Sketcher.Constraint("DistanceY", -1, 1, 4, 3, Q("17.822939 mm")))
sketch1.addConstraint(Sketcher.Constraint("DistanceY", -1, 1, 6, 3, Q("2.118441 mm")))
sketch1.addConstraint(Sketcher.Constraint("DistanceY", 8, 3, -1, 1, Q("16.51367 mm")))
sketch1.addConstraint(Sketcher.Constraint("DistanceY", 11, 3, -1, 1, Q("12.324451 mm")))
sketch1.addConstraint(Sketcher.Constraint("DistanceX", 21, 3, -1, 1, Q("7.685008 mm")))
sketch1.addConstraint(Sketcher.Constraint("DistanceY", 21, 3, -1, 1, Q("17.38494 mm")))
sketch1.addConstraint(Sketcher.Constraint("DistanceX", 26, 3, -1, 1, Q("18.908858 mm")))
sketch1.addConstraint(Sketcher.Constraint("DistanceX", -1, 1, 36, 3, Q("14.159262 mm")))
sketch1.addConstraint(Sketcher.Constraint("DistanceY", 36, 3, -1, 1, Q("12.681119 mm")))
sketch1.addConstraint(Sketcher.Constraint("DistanceX", 48, 3, -1, 1, Q("4.001309 mm")))
sketch1.addConstraint(Sketcher.Constraint("DistanceX", -1, 1, 0, 2, Q("27.93362 mm")))
sketch1.addConstraint(Sketcher.Constraint("DistanceX", 5, 2, -1, 1, Q("34.637311 mm")))
sketch1.addConstraint(Sketcher.Constraint("DistanceY", 8, 2, -1, 1, Q("25.044871 mm")))
sketch1.addConstraint(Sketcher.Constraint("DistanceY", 11, 2, -1, 1, Q("1.262689 mm")))
sketch1.addConstraint(Sketcher.Constraint("DistanceX", 13, 2, -1, 1, Q("8.705348 mm")))
sketch1.addConstraint(Sketcher.Constraint("DistanceX", 23, 2, -1, 1, Q("14.223049 mm")))
sketch1.addConstraint(Sketcher.Constraint("DistanceX", 25, 2, -1, 1, Q("11.98025 mm")))
sketch1.addConstraint(Sketcher.Constraint("DistanceY", -1, 1, 48, 1, Q("28.32381 mm")))
sketch1.addConstraint(Sketcher.Constraint("DistanceX", -1, 1, 51, 3, Q("16.435913 mm")))
pad1 = body.newObject("PartDesign::Pad", "Pad")
pad1.Profile = sketch1
pad1.Length = Q("0.25 in")

doc.recompute()
